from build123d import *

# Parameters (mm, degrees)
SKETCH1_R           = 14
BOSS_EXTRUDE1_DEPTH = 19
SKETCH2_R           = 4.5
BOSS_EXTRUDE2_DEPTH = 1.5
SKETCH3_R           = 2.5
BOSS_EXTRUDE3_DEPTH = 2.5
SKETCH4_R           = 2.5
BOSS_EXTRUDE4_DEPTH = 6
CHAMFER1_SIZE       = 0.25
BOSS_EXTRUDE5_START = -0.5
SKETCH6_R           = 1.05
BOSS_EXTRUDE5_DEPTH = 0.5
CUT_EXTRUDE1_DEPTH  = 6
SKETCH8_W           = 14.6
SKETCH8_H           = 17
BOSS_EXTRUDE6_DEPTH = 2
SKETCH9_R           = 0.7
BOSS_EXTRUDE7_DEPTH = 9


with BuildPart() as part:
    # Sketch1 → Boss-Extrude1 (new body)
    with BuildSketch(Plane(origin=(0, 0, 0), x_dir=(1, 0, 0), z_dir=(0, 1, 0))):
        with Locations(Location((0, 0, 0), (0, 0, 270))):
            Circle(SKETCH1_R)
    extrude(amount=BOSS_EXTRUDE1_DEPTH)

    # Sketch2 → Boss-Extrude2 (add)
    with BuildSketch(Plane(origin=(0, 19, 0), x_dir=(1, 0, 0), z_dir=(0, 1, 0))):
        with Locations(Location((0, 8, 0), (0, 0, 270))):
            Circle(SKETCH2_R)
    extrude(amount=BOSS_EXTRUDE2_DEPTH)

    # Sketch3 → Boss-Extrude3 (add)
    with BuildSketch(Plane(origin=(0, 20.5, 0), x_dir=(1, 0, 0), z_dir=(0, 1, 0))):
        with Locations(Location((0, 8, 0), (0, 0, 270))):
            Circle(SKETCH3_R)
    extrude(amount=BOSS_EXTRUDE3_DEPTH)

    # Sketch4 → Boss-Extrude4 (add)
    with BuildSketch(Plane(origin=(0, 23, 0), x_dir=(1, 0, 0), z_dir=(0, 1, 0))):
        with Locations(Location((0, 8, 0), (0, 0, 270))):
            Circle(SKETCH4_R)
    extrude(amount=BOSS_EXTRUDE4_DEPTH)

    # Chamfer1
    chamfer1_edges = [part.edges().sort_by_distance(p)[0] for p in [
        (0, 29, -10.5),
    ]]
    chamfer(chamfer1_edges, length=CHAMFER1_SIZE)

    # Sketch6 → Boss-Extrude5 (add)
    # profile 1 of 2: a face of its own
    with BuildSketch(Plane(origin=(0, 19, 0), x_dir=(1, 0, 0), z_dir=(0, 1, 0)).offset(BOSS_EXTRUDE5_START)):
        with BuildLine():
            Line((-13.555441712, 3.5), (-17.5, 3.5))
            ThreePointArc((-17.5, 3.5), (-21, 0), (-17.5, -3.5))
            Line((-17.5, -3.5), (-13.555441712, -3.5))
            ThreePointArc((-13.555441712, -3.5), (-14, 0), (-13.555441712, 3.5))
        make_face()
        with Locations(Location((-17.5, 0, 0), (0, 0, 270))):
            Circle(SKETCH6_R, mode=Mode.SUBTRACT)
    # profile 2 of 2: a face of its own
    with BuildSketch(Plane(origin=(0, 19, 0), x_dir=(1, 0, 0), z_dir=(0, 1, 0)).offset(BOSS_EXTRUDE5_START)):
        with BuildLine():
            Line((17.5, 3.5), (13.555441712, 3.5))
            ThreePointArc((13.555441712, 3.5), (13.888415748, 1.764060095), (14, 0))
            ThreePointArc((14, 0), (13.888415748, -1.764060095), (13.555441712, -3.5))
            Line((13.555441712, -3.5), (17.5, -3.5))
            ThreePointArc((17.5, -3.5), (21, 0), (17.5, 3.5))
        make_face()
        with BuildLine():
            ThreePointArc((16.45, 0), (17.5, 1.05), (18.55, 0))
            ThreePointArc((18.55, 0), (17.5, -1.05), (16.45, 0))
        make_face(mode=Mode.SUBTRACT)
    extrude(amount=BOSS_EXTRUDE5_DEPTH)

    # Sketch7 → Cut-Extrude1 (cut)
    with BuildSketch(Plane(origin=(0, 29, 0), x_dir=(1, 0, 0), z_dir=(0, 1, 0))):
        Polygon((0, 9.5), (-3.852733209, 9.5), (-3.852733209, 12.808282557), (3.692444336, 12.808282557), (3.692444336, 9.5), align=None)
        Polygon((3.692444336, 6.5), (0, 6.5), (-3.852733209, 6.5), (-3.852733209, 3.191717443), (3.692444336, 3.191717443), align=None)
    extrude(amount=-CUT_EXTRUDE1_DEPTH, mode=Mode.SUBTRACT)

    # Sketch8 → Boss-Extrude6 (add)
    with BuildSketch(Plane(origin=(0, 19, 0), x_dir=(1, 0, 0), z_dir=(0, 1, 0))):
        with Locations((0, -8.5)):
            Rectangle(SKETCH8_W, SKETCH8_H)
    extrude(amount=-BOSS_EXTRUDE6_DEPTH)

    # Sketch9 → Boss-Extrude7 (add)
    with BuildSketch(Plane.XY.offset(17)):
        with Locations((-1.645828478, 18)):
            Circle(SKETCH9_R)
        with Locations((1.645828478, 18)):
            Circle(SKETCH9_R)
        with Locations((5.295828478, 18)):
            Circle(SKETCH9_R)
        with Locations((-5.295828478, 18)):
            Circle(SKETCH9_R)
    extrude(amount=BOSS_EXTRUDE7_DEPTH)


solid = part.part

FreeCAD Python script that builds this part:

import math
import FreeCAD as App
import Part
import Sketcher

V = App.Vector
Q = App.Units.Quantity


def edges_at(feature, points):
    """Names of the edges that pass closest to the given points."""
    edges = feature.Shape.Edges
    near = lambda p: min(range(len(edges)), key=lambda i: edges[i].distToShape(Part.Vertex(*p))[0])
    return sorted({f"Edge{near(p) + 1}" for p in points})


def add_polygon(sketch, points):
    """Adds a closed chain of lines whose ends are joined by coincident constraints."""
    first, n = sketch.GeometryCount, len(points)
    for a, b in zip(points, points[1:] + points[:1]):
        sketch.addGeometry(Part.LineSegment(App.Vector(*a, 0), App.Vector(*b, 0)), False)
    for i in range(n):
        sketch.addConstraint(Sketcher.Constraint("Coincident", first + i, 2, first + (i + 1) % n, 1))

doc = App.newDocument("Part")
body = doc.addObject("PartDesign::Body", "Body")

# Sketch on XZ plane
sketch1 = body.newObject("Sketcher::SketchObject", "Sketch")
sketch1.AttachmentSupport = (doc.getObject("XZ_Plane"), [""])
sketch1.MapMode = "FlatFace"
sketch1.addGeometry(Part.Circle(V(0, 0, 0), V(0, 0, 1), 14), False)
sketch1.addConstraint([
    Sketcher.Constraint("Coincident", 0, 3, -1, 1),
    Sketcher.Constraint("Diameter", 0, Q("28 mm")),
])
pad1 = body.newObject("PartDesign::Pad", "Pad")
pad1.Profile = sketch1
pad1.Length = 19
pad1.Reversed = True

# Sketch on XZ plane
sketch2 = body.newObject("Sketcher::SketchObject", "Sketch001")
sketch2.AttachmentSupport = (doc.getObject("XZ_Plane"), [""])
sketch2.MapMode = "FlatFace"
sketch2.AttachmentOffset = App.Placement(V(0, 0, -19), App.Rotation())
sketch2.addGeometry(Part.Circle(V(0, -8, 0), V(0, 0, 1), 4.5), False)
sketch2.addConstraint([
    Sketcher.Constraint("PointOnObject", 0, 3, -2),
    Sketcher.Constraint("Diameter", 0, Q("9 mm")),
    Sketcher.Constraint("DistanceY", 0, 3, -1, 1, Q("8 mm")),
])
pad2 = body.newObject("PartDesign::Pad", "Pad001")
pad2.Profile = sketch2
pad2.Length = 1.5
pad2.Reversed = True

# Sketch on XZ plane
sketch3 = body.newObject("Sketcher::SketchObject", "Sketch002")
sketch3.AttachmentSupport = (doc.getObject("XZ_Plane"), [""])
sketch3.MapMode = "FlatFace"
sketch3.AttachmentOffset = App.Placement(V(0, 0, -20.5), App.Rotation())
sketch3.addGeometry(Part.Circle(V(0, -8, 0), V(0, 0, 1), 2.5), False)
sketch3.addConstraint([
    Sketcher.Constraint("PointOnObject", 0, 3, -2),
    Sketcher.Constraint("Diameter", 0, Q("5 mm")),
    Sketcher.Constraint("DistanceY", 0, 3, -1, 1, Q("8 mm")),
])
pad3 = body.newObject("PartDesign::Pad", "Pad002")
pad3.Profile = sketch3
pad3.Length = 2.5
pad3.Reversed = True

# Sketch on XZ plane
sketch4 = body.newObject("Sketcher::SketchObject", "Sketch003")
sketch4.AttachmentSupport = (doc.getObject("XZ_Plane"), [""])
sketch4.MapMode = "FlatFace"
sketch4.AttachmentOffset = App.Placement(V(0, 0, -23), App.Rotation())
sketch4.addGeometry(Part.Circle(V(0, -8, 0), V(0, 0, 1), 2.5), False)
sketch4.addConstraint([
    Sketcher.Constraint("PointOnObject", 0, 3, -2),
    Sketcher.Constraint("Diameter", 0, Q("5 mm")),
    Sketcher.Constraint("DistanceY", 0, 3, -1, 1, Q("8 mm")),
])
pad4 = body.newObject("PartDesign::Pad", "Pad003")
pad4.Profile = sketch4
pad4.Length = 6
pad4.Reversed = True
doc.recompute()

chamfer = body.newObject("PartDesign::Chamfer", "Chamfer")
chamfer.Base = (pad4, edges_at(pad4, [(0, 29, -10.5)]))
chamfer.Size = 0.25

# Sketch on XZ plane
sketch5 = body.newObject("Sketcher::SketchObject", "Sketch004")
sketch5.AttachmentSupport = (doc.getObject("XZ_Plane"), [""])
sketch5.MapMode = "FlatFace"
sketch5.AttachmentOffset = App.Placement(V(0, 0, -18.5), App.Rotation())
sketch5.addGeometry([
    Part.LineSegment(V(-13.6, -3.5, 0), V(-17.5, -3.5, 0)),  # 0
    Part.ArcOfCircle(Part.Circle(V(-17.5, 0, 0), V(0, 0, 1), 3.5), math.radians(90), math.radians(270)),  # 1
    Part.LineSegment(V(-17.5, 3.5, 0), V(-13.6, 3.5, 0)),  # 2
    Part.ArcOfCircle(Part.Circle(V(0, 0, 0), V(0, 0, 1), 14), math.radians(166), math.radians(194)),  # 3
    Part.Circle(V(-17.5, 0, 0), V(0, 0, 1), 1.1),  # 4
    Part.LineSegment(V(17.5, -3.5, 0), V(13.6, -3.5, 0)),  # 5
    Part.ArcOfCircle(Part.Circle(V(0, 0, 0), V(0, 0, 1), 14), math.radians(-14.48), math.radians(0)),  # 6
    Part.ArcOfCircle(Part.Circle(V(0, 0, 0), V(0, 0, 1), 14), math.radians(0), math.radians(14.48)),  # 7
    Part.LineSegment(V(13.6, 3.5, 0), V(17.5, 3.5, 0)),  # 8
    Part.ArcOfCircle(Part.Circle(V(17.5, 0, 0), V(0, 0, 1), 3.5), math.radians(-90), math.radians(90)),  # 9
    Part.Circle(V(17.5, 0, 0), V(0, 0, 1), 1.1),  # 10
], False)
sketch5.addConstraint([
    Sketcher.Constraint("Tangent", 0, 2, 1, 2),
    Sketcher.Constraint("Tangent", 1, 1, 2, 1),
    Sketcher.Constraint("Coincident", 2, 2, 3, 1),
    Sketcher.Constraint("Coincident", 3, 2, 0, 1),
    Sketcher.Constraint("Coincident", 5, 2, 6, 1),
    Sketcher.Constraint("Tangent", 6, 2, 7, 1),
    Sketcher.Constraint("Coincident", 7, 2, 8, 1),
    Sketcher.Constraint("Tangent", 8, 2, 9, 2),
    Sketcher.Constraint("Tangent", 9, 1, 5, 1),
    Sketcher.Constraint("Horizontal", 0),
    Sketcher.Constraint("Horizontal", 2),
    Sketcher.Constraint("Horizontal", 5),
    Sketcher.Constraint("Horizontal", 8),
    Sketcher.Constraint("Coincident", 3, 3, -1, 1),
    Sketcher.Constraint("Coincident", 6, 3, -1, 1),
    Sketcher.Constraint("Coincident", 4, 3, 1, 3),
    Sketcher.Constraint("Coincident", 10, 3, 9, 3),
    Sketcher.Constraint("Equal", 3, 6),
    Sketcher.Constraint("Equal", 6, 7),
    Sketcher.Constraint("Equal", 1, 9),
    Sketcher.Constraint("Equal", 4, 10),
    Sketcher.Constraint("Symmetric", 1, 3, 9, 3, -1, 1),
    Sketcher.Constraint("PointOnObject", 1, 3, -1),
    Sketcher.Constraint("PointOnObject", 6, 2, -1),
    Sketcher.Constraint("Radius", 3, Q("14 mm")),
    Sketcher.Constraint("Diameter", 4, Q("2.1 mm")),
    Sketcher.Constraint("Radius", 1, Q("3.5 mm")),
    Sketcher.Constraint("DistanceX", 1, 3, 9, 3, Q("35 mm")),
])
pad5 = body.newObject("PartDesign::Pad", "Pad004")
pad5.Profile = sketch5
pad5.Length = 0.5
pad5.Reversed = True

# Sketch on XZ plane
sketch6 = body.newObject("Sketcher::SketchObject", "Sketch005")
sketch6.AttachmentSupport = (doc.getObject("XZ_Plane"), [""])
sketch6.MapMode = "FlatFace"
sketch6.AttachmentOffset = App.Placement(V(0, 0, -29), App.Rotation())
add_polygon(sketch6, [(-3.9, -9.5), (3.7, -9.5), (3.7, -12.8), (-3.9, -12.8)])  # lines 0-3
add_polygon(sketch6, [(3.7, -6.5), (-3.9, -6.5), (-3.9, -3.2), (3.7, -3.2)])  # lines 4-7
sketch6.addConstraint([
    Sketcher.Constraint("Horizontal", 0),
    Sketcher.Constraint("Vertical", 1),
    Sketcher.Constraint("Horizontal", 2),
    Sketcher.Constraint("Vertical", 3),
    Sketcher.Constraint("Horizontal", 4),
    Sketcher.Constraint("Vertical", 5),
    Sketcher.Constraint("Horizontal", 6),
    Sketcher.Constraint("Vertical", 7),
    Sketcher.Constraint("Vertical", 3, 2, 4, 2),
    Sketcher.Constraint("Vertical", 1, 2, 6, 2),
    Sketcher.Constraint("Equal", 3, 5),
    Sketcher.Constraint("DistanceY", 3, 2, 4, 2, Q("3 mm")),
    Sketcher.Constraint("DistanceY", 0, 2, -1, 1, Q("9.5 mm")),
    Sketcher.Constraint("DistanceX", 0, 1, 0, 2, Q("7.545178 mm")),
    Sketcher.Constraint("DistanceY", 1, 2, 1, 1, Q("3.308283 mm")),
    Sketcher.Constraint("DistanceX", -1, 1, 0, 2, Q("3.692444 mm")),
])
pocket1 = body.newObject("PartDesign::Pocket", "Pocket")
pocket1.Profile = sketch6
pocket1.Length = 6
pocket1.Reversed = True

# Sketch on XZ plane
sketch7 = body.newObject("Sketcher::SketchObject", "Sketch006")
sketch7.AttachmentSupport = (doc.getObject("XZ_Plane"), [""])
sketch7.MapMode = "FlatFace"
sketch7.AttachmentOffset = App.Placement(V(0, 0, -19), App.Rotation())
add_polygon(sketch7, [(-7, 0), (-7, 17), (7, 17), (7, 0)])  # lines 0-3
sketch7.addConstraint([
    Sketcher.Constraint("Vertical", 0),
    Sketcher.Constraint("Horizontal", 1),
    Sketcher.Constraint("Vertical", 2),
    Sketcher.Constraint("Horizontal", 3),
    Sketcher.Constraint("Symmetric", 2, 2, 3, 2, -1, 1),
    Sketcher.Constraint("DistanceY", 0, 1, 0, 2, Q("17 mm")),
    Sketcher.Constraint("DistanceX", 1, 1, 1, 2, Q("14.6 mm")),
])
pad6 = body.newObject("PartDesign::Pad", "Pad005")
pad6.Profile = sketch7
pad6.Length = 2

# Sketch on XY plane
sketch8 = body.newObject("Sketcher::SketchObject", "Sketch007")
sketch8.AttachmentSupport = (doc.getObject("XY_Plane"), [""])
sketch8.MapMode = "FlatFace"
sketch8.AttachmentOffset = App.Placement(V(0, 0, 17), App.Rotation())
sketch8.addGeometry([
    Part.Circle(V(-1.6, 18, 0), V(0, 0, 1), 0.7),
    Part.Circle(V(1.6, 18, 0), V(0, 0, 1), 0.7),
    Part.Circle(V(5.3, 18, 0), V(0, 0, 1), 0.7),
    Part.Circle(V(-5.3, 18, 0), V(0, 0, 1), 0.7),
], False)
sketch8.addConstraint([
    Sketcher.Constraint("Equal", 0, 1),
    Sketcher.Constraint("Equal", 1, 2),
    Sketcher.Constraint("Equal", 2, 3),
    Sketcher.Constraint("Symmetric", 0, 3, 1, 3, -2),
    Sketcher.Constraint("Symmetric", 2, 3, 3, 3, -2),
    Sketcher.Constraint("Horizontal", 1, 3, 2, 3),
    Sketcher.Constraint("Diameter", 0, Q("1.4 mm")),
    Sketcher.Constraint("DistanceY", -1, 1, 0, 3, Q("18 mm")),
    Sketcher.Constraint("DistanceX", 1, 3, 2, 3, Q("3.65 mm")),
    Sketcher.Constraint("DistanceX", 0, 3, -1, 1, Q("1.645828 mm")),
])
pad7 = body.newObject("PartDesign::Pad", "Pad006")
pad7.Profile = sketch8
pad7.Length = 9

doc.recompute()
